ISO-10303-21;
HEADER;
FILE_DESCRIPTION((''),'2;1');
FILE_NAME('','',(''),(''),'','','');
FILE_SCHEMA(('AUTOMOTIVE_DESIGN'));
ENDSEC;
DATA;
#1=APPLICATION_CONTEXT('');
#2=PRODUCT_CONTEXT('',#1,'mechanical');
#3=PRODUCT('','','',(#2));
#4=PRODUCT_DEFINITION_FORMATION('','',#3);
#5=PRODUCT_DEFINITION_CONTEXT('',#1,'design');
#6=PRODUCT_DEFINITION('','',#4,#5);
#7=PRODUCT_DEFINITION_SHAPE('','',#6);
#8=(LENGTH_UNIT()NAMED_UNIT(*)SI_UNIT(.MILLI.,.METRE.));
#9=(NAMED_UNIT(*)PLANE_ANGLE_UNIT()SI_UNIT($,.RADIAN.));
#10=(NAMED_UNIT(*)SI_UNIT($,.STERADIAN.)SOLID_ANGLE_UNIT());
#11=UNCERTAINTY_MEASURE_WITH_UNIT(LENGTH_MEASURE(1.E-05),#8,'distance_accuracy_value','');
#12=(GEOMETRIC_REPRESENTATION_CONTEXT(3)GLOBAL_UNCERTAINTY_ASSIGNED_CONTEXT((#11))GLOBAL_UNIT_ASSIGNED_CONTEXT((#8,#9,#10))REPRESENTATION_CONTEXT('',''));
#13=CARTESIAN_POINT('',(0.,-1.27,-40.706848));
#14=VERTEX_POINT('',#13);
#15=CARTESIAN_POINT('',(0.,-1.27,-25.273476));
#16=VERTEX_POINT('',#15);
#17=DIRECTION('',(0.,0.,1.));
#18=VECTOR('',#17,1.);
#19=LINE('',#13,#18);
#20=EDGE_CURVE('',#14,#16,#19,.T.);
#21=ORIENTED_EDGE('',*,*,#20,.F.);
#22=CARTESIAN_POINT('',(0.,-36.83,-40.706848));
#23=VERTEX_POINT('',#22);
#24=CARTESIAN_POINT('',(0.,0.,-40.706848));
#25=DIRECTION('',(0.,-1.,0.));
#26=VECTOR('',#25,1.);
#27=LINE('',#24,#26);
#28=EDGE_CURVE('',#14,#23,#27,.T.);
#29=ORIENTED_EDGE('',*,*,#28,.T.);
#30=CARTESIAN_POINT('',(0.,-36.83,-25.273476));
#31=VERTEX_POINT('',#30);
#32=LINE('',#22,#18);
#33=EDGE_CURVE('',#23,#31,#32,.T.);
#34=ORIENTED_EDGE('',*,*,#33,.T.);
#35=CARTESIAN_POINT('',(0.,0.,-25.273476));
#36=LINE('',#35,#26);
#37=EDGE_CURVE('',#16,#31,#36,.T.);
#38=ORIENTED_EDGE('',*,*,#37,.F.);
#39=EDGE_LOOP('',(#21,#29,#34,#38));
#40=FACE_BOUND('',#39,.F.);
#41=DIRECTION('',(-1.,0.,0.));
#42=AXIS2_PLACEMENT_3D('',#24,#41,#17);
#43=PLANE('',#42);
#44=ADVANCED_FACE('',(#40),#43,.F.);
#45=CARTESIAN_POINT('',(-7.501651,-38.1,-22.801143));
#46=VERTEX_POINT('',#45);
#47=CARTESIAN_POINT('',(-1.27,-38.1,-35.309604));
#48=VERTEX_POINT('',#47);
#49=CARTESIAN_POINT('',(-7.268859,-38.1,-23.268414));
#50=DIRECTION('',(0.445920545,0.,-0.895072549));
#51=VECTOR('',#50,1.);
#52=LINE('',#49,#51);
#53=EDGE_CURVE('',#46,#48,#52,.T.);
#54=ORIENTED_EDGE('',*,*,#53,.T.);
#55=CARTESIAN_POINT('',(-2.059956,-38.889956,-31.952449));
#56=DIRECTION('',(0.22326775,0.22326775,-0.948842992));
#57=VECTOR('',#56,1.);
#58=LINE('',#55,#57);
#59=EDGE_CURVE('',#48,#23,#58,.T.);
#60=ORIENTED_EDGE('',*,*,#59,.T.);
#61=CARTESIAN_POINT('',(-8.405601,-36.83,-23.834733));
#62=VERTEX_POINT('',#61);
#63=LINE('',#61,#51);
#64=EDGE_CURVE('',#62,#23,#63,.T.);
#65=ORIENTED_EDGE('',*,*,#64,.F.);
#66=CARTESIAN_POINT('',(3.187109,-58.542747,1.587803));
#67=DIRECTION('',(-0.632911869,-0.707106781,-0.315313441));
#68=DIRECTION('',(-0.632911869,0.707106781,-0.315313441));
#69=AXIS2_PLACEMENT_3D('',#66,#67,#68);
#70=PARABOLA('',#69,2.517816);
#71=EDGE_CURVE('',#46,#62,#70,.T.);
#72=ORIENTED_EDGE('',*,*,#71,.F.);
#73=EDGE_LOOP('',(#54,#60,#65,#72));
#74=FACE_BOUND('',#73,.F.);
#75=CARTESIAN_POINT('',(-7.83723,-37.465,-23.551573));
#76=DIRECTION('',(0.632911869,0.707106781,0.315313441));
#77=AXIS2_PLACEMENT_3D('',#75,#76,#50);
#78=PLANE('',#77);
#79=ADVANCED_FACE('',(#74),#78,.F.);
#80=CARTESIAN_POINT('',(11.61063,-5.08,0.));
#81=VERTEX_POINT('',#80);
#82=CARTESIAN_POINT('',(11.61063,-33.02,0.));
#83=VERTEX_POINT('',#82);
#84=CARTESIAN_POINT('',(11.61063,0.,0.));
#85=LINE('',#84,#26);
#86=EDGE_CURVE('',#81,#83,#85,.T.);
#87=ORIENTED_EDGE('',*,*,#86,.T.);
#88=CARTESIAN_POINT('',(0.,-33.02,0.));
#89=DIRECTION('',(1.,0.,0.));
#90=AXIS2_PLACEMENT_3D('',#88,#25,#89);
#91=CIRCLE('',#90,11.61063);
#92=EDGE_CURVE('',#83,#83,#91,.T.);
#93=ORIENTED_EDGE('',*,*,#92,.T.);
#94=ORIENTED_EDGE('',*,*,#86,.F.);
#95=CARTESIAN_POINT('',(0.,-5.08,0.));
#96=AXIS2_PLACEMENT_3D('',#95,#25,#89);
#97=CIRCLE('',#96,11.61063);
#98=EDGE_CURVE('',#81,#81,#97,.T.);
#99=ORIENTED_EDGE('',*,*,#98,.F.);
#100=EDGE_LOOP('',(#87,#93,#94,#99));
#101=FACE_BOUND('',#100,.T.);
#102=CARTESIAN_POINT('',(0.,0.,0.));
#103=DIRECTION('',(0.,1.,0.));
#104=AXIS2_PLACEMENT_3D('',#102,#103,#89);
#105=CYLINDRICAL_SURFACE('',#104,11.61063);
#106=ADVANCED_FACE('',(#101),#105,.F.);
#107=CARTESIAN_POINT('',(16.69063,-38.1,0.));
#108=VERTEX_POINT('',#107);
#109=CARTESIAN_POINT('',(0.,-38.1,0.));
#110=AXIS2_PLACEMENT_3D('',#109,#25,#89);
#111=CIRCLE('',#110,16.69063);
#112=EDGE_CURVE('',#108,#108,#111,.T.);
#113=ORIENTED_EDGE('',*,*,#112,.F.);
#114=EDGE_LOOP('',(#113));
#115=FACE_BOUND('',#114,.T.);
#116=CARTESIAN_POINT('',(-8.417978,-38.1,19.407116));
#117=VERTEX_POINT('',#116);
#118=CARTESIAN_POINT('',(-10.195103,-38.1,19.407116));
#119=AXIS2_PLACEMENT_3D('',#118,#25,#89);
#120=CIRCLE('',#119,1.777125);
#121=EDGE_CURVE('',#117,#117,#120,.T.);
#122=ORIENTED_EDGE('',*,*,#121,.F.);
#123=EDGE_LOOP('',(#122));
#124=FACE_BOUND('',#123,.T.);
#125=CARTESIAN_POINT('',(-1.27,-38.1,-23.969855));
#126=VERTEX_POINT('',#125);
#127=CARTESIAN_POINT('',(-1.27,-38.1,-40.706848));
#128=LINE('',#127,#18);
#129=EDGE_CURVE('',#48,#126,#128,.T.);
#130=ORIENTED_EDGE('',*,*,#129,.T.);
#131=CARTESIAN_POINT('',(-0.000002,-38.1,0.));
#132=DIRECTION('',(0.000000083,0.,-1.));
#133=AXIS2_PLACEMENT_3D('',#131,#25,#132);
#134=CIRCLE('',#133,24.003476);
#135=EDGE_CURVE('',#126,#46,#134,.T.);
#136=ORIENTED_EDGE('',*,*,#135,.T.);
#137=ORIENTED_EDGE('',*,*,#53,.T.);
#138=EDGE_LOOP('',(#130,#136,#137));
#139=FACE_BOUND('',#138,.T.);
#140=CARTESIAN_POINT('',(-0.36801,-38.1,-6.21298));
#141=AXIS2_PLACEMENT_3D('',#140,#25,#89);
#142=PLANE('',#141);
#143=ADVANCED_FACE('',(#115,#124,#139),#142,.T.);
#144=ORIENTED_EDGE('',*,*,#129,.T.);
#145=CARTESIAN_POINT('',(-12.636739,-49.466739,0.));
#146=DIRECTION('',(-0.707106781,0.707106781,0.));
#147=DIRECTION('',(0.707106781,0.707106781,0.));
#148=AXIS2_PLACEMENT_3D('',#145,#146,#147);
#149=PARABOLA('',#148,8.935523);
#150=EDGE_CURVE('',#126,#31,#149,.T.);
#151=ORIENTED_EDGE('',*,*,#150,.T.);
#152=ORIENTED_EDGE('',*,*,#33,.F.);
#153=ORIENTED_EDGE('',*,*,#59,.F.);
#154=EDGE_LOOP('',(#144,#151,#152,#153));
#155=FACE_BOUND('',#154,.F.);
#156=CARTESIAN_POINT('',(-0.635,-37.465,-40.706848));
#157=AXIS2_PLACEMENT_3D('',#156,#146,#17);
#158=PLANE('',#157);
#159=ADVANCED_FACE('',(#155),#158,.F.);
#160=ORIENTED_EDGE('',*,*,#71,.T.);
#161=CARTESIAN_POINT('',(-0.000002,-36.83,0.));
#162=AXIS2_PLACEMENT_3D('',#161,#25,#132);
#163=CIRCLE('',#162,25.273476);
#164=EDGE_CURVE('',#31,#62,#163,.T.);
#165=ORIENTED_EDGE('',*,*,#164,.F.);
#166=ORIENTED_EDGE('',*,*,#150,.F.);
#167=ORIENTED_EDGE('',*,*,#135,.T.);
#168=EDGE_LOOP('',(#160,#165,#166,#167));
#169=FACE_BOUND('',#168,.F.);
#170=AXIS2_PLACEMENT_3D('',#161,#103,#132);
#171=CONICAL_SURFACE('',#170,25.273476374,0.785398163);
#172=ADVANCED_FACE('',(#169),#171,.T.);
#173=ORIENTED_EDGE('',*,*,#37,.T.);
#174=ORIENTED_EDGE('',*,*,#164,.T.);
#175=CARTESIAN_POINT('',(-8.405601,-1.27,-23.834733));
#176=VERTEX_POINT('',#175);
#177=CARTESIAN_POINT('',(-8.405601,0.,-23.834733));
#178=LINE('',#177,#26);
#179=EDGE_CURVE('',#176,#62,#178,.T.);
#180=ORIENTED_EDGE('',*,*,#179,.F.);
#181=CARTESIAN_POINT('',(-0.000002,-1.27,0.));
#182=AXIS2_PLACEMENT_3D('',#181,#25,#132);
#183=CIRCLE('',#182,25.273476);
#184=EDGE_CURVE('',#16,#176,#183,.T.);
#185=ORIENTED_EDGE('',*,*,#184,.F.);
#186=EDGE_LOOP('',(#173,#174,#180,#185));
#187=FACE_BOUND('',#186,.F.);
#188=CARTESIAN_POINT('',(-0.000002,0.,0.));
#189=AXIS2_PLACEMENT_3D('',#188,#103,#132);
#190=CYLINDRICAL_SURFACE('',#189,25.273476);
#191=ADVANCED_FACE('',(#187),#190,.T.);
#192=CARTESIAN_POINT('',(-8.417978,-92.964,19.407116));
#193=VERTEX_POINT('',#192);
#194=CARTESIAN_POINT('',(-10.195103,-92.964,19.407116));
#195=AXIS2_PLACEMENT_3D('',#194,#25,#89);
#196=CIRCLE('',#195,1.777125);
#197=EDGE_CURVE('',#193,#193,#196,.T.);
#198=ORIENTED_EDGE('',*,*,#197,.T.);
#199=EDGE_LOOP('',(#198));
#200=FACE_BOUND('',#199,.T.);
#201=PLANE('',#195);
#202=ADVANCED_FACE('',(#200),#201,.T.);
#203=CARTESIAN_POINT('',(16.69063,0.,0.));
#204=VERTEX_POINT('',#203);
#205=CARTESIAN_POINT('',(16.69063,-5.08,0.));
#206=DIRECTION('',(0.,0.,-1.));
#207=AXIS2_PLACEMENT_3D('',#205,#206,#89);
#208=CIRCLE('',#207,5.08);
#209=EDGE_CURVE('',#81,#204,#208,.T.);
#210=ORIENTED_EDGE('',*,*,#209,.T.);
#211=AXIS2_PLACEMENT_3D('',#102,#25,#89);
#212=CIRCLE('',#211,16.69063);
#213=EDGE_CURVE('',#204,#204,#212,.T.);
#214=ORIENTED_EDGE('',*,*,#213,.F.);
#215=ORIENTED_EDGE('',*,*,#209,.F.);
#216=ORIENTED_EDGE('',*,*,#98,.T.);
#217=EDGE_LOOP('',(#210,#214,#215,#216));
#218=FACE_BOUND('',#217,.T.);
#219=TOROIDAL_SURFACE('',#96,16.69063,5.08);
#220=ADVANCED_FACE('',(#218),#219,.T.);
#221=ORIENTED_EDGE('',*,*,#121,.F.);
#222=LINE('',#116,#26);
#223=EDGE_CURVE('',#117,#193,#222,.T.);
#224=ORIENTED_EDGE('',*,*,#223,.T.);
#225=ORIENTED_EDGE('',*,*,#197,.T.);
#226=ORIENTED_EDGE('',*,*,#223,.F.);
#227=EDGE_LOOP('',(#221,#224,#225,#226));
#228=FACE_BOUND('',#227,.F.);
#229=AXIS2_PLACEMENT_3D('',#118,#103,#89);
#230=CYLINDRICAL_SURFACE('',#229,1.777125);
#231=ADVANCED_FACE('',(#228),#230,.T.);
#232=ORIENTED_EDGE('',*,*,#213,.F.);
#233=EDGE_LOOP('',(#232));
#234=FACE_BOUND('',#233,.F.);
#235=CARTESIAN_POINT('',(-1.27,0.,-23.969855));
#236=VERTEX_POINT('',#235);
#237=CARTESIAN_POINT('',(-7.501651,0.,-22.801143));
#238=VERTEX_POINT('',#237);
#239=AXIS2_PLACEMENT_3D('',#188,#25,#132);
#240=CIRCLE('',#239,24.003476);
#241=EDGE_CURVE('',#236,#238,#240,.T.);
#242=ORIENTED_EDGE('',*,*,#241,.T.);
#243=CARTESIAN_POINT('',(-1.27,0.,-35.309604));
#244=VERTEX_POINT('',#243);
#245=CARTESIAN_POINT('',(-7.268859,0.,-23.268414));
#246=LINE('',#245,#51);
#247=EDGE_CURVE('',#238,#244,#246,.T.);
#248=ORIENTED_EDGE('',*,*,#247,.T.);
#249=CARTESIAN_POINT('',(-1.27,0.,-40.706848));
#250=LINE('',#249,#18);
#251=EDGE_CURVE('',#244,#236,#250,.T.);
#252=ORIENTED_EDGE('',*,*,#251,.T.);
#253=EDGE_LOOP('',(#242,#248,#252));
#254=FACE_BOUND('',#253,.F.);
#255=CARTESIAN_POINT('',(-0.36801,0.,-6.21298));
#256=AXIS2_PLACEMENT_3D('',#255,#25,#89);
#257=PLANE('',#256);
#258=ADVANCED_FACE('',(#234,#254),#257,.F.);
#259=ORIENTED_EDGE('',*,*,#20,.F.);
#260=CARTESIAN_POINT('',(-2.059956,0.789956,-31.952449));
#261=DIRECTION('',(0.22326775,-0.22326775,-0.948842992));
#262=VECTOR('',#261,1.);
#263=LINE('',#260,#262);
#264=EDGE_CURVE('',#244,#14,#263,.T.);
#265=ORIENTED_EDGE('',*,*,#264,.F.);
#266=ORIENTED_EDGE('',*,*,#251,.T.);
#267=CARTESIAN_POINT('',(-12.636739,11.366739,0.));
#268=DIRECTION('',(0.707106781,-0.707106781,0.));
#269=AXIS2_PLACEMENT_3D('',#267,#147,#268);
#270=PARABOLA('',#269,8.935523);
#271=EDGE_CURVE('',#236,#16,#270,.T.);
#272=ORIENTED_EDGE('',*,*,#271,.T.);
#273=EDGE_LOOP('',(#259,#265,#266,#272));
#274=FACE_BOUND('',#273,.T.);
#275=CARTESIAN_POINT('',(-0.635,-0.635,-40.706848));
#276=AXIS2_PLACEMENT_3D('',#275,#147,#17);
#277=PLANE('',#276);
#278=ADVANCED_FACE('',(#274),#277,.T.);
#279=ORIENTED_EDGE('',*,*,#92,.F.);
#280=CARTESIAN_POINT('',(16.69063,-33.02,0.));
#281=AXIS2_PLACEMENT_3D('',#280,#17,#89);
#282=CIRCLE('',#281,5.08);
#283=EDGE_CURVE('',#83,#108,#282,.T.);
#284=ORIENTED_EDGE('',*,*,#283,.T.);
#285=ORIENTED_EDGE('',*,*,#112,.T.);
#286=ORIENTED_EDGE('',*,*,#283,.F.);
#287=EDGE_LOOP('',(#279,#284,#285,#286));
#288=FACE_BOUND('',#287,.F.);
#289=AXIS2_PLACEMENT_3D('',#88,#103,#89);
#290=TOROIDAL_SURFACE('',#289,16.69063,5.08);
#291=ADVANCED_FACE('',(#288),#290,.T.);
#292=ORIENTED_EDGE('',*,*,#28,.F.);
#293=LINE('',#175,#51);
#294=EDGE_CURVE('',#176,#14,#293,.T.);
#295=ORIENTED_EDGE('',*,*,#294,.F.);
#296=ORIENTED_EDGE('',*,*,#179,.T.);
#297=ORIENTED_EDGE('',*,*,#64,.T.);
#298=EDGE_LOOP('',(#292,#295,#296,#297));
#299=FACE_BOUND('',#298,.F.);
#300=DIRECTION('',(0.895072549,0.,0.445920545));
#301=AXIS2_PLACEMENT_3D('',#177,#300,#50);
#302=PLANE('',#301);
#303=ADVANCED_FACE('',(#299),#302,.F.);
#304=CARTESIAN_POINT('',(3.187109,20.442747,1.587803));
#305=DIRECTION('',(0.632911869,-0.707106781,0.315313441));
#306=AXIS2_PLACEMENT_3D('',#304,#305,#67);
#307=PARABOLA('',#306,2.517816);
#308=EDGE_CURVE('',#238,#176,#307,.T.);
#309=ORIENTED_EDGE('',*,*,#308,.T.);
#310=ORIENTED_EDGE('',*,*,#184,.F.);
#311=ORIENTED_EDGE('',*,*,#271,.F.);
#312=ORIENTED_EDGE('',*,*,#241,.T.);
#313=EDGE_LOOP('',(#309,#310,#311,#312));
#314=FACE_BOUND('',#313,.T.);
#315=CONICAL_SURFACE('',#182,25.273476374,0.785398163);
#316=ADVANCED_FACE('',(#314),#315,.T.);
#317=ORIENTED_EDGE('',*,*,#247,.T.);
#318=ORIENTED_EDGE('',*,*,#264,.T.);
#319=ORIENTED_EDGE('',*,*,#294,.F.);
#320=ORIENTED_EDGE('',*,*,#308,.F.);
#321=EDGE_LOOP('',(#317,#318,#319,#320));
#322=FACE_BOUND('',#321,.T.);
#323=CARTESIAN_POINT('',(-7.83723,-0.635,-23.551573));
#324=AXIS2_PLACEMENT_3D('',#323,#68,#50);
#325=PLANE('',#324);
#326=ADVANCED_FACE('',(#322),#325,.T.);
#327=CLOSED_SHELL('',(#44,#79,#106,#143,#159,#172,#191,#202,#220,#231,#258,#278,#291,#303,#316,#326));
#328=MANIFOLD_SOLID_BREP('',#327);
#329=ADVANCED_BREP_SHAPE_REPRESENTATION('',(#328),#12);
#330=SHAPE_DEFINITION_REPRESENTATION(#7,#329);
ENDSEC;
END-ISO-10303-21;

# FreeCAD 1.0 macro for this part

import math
import FreeCAD as App
import Part
import Sketcher

V = App.Vector
Q = App.Units.Quantity


def edges_at(feature, points):
    """Names of the edges that pass closest to the given points."""
    edges = feature.Shape.Edges
    near = lambda p: min(range(len(edges)), key=lambda i: edges[i].distToShape(Part.Vertex(*p))[0])
    return sorted({f"Edge{near(p) + 1}" for p in points})

doc = App.newDocument("Part")
body = doc.addObject("PartDesign::Body", "Body")

sketch1 = body.newObject("Sketcher::SketchObject", "Sketch")
sketch1.AttachmentSupport = (doc.getObject("XZ_Plane"), [""])
sketch1.MapMode = "FlatFace"
sketch1.addGeometry([
    Part.LineSegment(V(0, -41, 0), V(0, -25, 0)),
    Part.ArcOfCircle(Part.Circle(V(0, 0, 0), V(0, 0, 1), 25), math.radians(-90), math.radians(251)),
    Part.LineSegment(V(-8, -24, 0), V(0, -41, 0)),
    Part.Circle(V(0, 0, 0), V(0, 0, 1), 12),
], False)
sketch1.addConstraint([
    Sketcher.Constraint("Coincident", 0, 2, 1, 1),
    Sketcher.Constraint("Coincident", 1, 2, 2, 1),
    Sketcher.Constraint("Coincident", 2, 2, 0, 1),
    Sketcher.Constraint("Vertical", 0),
    Sketcher.Constraint("Coincident", 1, 3, -1, 1),
    Sketcher.Constraint("Coincident", 3, 3, -1, 1),
    Sketcher.Constraint("PointOnObject", 0, 2, -2),
    Sketcher.Constraint("Diameter", 3, 23.22126),
    Sketcher.Constraint("Radius", 1, 25.273476),
    Sketcher.Constraint("DistanceX", 1, 2, -1, 1, 8.405601),
    Sketcher.Constraint("DistanceY", 0, 1, 0, 2, 15.433372),
])
pad1 = body.newObject("PartDesign::Pad", "Pad")
pad1.Profile = sketch1
pad1.Length = Q("1.5 in")
doc.recompute()

fillet = body.newObject("PartDesign::Fillet", "Fillet")
fillet.Base = (pad1, edges_at(pad1, [(-11.611, 0, 0), (-11.611, -38.1, 0)]))
fillet.Radius = Q("0.2 in")
doc.recompute()

chamfer = body.newObject("PartDesign::Chamfer", "Chamfer")
chamfer.Base = (fillet, edges_at(fillet, [
    (4.264, -38.1, 24.911),
    (0, -38.1, -32.99),
    (4.264, 0, 24.911),
    (0, 0, -32.99),
    (-4.203, 0, -32.271),
    (-4.203, -38.1, -32.271),
]))
chamfer.Size = Q("0.05 in")

sketch2 = body.newObject("Sketcher::SketchObject", "Sketch001")
sketch2.AttachmentSupport = (doc.getObject("XZ_Plane"), [""])
sketch2.MapMode = "FlatFace"
sketch2.AttachmentOffset = App.Placement(V(0, 0, 1.5 * 25.4), App.Rotation())
sketch2.addGeometry(Part.Circle(V(-10.2, 19.4, 0), V(0, 0, 1), 1.8), False)
sketch2.addConstraint([
    Sketcher.Constraint("Diameter", 0, 3.55425),
    Sketcher.Constraint("DistanceX", 0, 3, -1, 1, 10.195103),
    Sketcher.Constraint("DistanceY", -1, 1, 0, 3, 19.407116),
])
pad2 = body.newObject("PartDesign::Pad", "Pad001")
pad2.Profile = sketch2
pad2.Length = Q("2.16 in")

doc.recompute()
